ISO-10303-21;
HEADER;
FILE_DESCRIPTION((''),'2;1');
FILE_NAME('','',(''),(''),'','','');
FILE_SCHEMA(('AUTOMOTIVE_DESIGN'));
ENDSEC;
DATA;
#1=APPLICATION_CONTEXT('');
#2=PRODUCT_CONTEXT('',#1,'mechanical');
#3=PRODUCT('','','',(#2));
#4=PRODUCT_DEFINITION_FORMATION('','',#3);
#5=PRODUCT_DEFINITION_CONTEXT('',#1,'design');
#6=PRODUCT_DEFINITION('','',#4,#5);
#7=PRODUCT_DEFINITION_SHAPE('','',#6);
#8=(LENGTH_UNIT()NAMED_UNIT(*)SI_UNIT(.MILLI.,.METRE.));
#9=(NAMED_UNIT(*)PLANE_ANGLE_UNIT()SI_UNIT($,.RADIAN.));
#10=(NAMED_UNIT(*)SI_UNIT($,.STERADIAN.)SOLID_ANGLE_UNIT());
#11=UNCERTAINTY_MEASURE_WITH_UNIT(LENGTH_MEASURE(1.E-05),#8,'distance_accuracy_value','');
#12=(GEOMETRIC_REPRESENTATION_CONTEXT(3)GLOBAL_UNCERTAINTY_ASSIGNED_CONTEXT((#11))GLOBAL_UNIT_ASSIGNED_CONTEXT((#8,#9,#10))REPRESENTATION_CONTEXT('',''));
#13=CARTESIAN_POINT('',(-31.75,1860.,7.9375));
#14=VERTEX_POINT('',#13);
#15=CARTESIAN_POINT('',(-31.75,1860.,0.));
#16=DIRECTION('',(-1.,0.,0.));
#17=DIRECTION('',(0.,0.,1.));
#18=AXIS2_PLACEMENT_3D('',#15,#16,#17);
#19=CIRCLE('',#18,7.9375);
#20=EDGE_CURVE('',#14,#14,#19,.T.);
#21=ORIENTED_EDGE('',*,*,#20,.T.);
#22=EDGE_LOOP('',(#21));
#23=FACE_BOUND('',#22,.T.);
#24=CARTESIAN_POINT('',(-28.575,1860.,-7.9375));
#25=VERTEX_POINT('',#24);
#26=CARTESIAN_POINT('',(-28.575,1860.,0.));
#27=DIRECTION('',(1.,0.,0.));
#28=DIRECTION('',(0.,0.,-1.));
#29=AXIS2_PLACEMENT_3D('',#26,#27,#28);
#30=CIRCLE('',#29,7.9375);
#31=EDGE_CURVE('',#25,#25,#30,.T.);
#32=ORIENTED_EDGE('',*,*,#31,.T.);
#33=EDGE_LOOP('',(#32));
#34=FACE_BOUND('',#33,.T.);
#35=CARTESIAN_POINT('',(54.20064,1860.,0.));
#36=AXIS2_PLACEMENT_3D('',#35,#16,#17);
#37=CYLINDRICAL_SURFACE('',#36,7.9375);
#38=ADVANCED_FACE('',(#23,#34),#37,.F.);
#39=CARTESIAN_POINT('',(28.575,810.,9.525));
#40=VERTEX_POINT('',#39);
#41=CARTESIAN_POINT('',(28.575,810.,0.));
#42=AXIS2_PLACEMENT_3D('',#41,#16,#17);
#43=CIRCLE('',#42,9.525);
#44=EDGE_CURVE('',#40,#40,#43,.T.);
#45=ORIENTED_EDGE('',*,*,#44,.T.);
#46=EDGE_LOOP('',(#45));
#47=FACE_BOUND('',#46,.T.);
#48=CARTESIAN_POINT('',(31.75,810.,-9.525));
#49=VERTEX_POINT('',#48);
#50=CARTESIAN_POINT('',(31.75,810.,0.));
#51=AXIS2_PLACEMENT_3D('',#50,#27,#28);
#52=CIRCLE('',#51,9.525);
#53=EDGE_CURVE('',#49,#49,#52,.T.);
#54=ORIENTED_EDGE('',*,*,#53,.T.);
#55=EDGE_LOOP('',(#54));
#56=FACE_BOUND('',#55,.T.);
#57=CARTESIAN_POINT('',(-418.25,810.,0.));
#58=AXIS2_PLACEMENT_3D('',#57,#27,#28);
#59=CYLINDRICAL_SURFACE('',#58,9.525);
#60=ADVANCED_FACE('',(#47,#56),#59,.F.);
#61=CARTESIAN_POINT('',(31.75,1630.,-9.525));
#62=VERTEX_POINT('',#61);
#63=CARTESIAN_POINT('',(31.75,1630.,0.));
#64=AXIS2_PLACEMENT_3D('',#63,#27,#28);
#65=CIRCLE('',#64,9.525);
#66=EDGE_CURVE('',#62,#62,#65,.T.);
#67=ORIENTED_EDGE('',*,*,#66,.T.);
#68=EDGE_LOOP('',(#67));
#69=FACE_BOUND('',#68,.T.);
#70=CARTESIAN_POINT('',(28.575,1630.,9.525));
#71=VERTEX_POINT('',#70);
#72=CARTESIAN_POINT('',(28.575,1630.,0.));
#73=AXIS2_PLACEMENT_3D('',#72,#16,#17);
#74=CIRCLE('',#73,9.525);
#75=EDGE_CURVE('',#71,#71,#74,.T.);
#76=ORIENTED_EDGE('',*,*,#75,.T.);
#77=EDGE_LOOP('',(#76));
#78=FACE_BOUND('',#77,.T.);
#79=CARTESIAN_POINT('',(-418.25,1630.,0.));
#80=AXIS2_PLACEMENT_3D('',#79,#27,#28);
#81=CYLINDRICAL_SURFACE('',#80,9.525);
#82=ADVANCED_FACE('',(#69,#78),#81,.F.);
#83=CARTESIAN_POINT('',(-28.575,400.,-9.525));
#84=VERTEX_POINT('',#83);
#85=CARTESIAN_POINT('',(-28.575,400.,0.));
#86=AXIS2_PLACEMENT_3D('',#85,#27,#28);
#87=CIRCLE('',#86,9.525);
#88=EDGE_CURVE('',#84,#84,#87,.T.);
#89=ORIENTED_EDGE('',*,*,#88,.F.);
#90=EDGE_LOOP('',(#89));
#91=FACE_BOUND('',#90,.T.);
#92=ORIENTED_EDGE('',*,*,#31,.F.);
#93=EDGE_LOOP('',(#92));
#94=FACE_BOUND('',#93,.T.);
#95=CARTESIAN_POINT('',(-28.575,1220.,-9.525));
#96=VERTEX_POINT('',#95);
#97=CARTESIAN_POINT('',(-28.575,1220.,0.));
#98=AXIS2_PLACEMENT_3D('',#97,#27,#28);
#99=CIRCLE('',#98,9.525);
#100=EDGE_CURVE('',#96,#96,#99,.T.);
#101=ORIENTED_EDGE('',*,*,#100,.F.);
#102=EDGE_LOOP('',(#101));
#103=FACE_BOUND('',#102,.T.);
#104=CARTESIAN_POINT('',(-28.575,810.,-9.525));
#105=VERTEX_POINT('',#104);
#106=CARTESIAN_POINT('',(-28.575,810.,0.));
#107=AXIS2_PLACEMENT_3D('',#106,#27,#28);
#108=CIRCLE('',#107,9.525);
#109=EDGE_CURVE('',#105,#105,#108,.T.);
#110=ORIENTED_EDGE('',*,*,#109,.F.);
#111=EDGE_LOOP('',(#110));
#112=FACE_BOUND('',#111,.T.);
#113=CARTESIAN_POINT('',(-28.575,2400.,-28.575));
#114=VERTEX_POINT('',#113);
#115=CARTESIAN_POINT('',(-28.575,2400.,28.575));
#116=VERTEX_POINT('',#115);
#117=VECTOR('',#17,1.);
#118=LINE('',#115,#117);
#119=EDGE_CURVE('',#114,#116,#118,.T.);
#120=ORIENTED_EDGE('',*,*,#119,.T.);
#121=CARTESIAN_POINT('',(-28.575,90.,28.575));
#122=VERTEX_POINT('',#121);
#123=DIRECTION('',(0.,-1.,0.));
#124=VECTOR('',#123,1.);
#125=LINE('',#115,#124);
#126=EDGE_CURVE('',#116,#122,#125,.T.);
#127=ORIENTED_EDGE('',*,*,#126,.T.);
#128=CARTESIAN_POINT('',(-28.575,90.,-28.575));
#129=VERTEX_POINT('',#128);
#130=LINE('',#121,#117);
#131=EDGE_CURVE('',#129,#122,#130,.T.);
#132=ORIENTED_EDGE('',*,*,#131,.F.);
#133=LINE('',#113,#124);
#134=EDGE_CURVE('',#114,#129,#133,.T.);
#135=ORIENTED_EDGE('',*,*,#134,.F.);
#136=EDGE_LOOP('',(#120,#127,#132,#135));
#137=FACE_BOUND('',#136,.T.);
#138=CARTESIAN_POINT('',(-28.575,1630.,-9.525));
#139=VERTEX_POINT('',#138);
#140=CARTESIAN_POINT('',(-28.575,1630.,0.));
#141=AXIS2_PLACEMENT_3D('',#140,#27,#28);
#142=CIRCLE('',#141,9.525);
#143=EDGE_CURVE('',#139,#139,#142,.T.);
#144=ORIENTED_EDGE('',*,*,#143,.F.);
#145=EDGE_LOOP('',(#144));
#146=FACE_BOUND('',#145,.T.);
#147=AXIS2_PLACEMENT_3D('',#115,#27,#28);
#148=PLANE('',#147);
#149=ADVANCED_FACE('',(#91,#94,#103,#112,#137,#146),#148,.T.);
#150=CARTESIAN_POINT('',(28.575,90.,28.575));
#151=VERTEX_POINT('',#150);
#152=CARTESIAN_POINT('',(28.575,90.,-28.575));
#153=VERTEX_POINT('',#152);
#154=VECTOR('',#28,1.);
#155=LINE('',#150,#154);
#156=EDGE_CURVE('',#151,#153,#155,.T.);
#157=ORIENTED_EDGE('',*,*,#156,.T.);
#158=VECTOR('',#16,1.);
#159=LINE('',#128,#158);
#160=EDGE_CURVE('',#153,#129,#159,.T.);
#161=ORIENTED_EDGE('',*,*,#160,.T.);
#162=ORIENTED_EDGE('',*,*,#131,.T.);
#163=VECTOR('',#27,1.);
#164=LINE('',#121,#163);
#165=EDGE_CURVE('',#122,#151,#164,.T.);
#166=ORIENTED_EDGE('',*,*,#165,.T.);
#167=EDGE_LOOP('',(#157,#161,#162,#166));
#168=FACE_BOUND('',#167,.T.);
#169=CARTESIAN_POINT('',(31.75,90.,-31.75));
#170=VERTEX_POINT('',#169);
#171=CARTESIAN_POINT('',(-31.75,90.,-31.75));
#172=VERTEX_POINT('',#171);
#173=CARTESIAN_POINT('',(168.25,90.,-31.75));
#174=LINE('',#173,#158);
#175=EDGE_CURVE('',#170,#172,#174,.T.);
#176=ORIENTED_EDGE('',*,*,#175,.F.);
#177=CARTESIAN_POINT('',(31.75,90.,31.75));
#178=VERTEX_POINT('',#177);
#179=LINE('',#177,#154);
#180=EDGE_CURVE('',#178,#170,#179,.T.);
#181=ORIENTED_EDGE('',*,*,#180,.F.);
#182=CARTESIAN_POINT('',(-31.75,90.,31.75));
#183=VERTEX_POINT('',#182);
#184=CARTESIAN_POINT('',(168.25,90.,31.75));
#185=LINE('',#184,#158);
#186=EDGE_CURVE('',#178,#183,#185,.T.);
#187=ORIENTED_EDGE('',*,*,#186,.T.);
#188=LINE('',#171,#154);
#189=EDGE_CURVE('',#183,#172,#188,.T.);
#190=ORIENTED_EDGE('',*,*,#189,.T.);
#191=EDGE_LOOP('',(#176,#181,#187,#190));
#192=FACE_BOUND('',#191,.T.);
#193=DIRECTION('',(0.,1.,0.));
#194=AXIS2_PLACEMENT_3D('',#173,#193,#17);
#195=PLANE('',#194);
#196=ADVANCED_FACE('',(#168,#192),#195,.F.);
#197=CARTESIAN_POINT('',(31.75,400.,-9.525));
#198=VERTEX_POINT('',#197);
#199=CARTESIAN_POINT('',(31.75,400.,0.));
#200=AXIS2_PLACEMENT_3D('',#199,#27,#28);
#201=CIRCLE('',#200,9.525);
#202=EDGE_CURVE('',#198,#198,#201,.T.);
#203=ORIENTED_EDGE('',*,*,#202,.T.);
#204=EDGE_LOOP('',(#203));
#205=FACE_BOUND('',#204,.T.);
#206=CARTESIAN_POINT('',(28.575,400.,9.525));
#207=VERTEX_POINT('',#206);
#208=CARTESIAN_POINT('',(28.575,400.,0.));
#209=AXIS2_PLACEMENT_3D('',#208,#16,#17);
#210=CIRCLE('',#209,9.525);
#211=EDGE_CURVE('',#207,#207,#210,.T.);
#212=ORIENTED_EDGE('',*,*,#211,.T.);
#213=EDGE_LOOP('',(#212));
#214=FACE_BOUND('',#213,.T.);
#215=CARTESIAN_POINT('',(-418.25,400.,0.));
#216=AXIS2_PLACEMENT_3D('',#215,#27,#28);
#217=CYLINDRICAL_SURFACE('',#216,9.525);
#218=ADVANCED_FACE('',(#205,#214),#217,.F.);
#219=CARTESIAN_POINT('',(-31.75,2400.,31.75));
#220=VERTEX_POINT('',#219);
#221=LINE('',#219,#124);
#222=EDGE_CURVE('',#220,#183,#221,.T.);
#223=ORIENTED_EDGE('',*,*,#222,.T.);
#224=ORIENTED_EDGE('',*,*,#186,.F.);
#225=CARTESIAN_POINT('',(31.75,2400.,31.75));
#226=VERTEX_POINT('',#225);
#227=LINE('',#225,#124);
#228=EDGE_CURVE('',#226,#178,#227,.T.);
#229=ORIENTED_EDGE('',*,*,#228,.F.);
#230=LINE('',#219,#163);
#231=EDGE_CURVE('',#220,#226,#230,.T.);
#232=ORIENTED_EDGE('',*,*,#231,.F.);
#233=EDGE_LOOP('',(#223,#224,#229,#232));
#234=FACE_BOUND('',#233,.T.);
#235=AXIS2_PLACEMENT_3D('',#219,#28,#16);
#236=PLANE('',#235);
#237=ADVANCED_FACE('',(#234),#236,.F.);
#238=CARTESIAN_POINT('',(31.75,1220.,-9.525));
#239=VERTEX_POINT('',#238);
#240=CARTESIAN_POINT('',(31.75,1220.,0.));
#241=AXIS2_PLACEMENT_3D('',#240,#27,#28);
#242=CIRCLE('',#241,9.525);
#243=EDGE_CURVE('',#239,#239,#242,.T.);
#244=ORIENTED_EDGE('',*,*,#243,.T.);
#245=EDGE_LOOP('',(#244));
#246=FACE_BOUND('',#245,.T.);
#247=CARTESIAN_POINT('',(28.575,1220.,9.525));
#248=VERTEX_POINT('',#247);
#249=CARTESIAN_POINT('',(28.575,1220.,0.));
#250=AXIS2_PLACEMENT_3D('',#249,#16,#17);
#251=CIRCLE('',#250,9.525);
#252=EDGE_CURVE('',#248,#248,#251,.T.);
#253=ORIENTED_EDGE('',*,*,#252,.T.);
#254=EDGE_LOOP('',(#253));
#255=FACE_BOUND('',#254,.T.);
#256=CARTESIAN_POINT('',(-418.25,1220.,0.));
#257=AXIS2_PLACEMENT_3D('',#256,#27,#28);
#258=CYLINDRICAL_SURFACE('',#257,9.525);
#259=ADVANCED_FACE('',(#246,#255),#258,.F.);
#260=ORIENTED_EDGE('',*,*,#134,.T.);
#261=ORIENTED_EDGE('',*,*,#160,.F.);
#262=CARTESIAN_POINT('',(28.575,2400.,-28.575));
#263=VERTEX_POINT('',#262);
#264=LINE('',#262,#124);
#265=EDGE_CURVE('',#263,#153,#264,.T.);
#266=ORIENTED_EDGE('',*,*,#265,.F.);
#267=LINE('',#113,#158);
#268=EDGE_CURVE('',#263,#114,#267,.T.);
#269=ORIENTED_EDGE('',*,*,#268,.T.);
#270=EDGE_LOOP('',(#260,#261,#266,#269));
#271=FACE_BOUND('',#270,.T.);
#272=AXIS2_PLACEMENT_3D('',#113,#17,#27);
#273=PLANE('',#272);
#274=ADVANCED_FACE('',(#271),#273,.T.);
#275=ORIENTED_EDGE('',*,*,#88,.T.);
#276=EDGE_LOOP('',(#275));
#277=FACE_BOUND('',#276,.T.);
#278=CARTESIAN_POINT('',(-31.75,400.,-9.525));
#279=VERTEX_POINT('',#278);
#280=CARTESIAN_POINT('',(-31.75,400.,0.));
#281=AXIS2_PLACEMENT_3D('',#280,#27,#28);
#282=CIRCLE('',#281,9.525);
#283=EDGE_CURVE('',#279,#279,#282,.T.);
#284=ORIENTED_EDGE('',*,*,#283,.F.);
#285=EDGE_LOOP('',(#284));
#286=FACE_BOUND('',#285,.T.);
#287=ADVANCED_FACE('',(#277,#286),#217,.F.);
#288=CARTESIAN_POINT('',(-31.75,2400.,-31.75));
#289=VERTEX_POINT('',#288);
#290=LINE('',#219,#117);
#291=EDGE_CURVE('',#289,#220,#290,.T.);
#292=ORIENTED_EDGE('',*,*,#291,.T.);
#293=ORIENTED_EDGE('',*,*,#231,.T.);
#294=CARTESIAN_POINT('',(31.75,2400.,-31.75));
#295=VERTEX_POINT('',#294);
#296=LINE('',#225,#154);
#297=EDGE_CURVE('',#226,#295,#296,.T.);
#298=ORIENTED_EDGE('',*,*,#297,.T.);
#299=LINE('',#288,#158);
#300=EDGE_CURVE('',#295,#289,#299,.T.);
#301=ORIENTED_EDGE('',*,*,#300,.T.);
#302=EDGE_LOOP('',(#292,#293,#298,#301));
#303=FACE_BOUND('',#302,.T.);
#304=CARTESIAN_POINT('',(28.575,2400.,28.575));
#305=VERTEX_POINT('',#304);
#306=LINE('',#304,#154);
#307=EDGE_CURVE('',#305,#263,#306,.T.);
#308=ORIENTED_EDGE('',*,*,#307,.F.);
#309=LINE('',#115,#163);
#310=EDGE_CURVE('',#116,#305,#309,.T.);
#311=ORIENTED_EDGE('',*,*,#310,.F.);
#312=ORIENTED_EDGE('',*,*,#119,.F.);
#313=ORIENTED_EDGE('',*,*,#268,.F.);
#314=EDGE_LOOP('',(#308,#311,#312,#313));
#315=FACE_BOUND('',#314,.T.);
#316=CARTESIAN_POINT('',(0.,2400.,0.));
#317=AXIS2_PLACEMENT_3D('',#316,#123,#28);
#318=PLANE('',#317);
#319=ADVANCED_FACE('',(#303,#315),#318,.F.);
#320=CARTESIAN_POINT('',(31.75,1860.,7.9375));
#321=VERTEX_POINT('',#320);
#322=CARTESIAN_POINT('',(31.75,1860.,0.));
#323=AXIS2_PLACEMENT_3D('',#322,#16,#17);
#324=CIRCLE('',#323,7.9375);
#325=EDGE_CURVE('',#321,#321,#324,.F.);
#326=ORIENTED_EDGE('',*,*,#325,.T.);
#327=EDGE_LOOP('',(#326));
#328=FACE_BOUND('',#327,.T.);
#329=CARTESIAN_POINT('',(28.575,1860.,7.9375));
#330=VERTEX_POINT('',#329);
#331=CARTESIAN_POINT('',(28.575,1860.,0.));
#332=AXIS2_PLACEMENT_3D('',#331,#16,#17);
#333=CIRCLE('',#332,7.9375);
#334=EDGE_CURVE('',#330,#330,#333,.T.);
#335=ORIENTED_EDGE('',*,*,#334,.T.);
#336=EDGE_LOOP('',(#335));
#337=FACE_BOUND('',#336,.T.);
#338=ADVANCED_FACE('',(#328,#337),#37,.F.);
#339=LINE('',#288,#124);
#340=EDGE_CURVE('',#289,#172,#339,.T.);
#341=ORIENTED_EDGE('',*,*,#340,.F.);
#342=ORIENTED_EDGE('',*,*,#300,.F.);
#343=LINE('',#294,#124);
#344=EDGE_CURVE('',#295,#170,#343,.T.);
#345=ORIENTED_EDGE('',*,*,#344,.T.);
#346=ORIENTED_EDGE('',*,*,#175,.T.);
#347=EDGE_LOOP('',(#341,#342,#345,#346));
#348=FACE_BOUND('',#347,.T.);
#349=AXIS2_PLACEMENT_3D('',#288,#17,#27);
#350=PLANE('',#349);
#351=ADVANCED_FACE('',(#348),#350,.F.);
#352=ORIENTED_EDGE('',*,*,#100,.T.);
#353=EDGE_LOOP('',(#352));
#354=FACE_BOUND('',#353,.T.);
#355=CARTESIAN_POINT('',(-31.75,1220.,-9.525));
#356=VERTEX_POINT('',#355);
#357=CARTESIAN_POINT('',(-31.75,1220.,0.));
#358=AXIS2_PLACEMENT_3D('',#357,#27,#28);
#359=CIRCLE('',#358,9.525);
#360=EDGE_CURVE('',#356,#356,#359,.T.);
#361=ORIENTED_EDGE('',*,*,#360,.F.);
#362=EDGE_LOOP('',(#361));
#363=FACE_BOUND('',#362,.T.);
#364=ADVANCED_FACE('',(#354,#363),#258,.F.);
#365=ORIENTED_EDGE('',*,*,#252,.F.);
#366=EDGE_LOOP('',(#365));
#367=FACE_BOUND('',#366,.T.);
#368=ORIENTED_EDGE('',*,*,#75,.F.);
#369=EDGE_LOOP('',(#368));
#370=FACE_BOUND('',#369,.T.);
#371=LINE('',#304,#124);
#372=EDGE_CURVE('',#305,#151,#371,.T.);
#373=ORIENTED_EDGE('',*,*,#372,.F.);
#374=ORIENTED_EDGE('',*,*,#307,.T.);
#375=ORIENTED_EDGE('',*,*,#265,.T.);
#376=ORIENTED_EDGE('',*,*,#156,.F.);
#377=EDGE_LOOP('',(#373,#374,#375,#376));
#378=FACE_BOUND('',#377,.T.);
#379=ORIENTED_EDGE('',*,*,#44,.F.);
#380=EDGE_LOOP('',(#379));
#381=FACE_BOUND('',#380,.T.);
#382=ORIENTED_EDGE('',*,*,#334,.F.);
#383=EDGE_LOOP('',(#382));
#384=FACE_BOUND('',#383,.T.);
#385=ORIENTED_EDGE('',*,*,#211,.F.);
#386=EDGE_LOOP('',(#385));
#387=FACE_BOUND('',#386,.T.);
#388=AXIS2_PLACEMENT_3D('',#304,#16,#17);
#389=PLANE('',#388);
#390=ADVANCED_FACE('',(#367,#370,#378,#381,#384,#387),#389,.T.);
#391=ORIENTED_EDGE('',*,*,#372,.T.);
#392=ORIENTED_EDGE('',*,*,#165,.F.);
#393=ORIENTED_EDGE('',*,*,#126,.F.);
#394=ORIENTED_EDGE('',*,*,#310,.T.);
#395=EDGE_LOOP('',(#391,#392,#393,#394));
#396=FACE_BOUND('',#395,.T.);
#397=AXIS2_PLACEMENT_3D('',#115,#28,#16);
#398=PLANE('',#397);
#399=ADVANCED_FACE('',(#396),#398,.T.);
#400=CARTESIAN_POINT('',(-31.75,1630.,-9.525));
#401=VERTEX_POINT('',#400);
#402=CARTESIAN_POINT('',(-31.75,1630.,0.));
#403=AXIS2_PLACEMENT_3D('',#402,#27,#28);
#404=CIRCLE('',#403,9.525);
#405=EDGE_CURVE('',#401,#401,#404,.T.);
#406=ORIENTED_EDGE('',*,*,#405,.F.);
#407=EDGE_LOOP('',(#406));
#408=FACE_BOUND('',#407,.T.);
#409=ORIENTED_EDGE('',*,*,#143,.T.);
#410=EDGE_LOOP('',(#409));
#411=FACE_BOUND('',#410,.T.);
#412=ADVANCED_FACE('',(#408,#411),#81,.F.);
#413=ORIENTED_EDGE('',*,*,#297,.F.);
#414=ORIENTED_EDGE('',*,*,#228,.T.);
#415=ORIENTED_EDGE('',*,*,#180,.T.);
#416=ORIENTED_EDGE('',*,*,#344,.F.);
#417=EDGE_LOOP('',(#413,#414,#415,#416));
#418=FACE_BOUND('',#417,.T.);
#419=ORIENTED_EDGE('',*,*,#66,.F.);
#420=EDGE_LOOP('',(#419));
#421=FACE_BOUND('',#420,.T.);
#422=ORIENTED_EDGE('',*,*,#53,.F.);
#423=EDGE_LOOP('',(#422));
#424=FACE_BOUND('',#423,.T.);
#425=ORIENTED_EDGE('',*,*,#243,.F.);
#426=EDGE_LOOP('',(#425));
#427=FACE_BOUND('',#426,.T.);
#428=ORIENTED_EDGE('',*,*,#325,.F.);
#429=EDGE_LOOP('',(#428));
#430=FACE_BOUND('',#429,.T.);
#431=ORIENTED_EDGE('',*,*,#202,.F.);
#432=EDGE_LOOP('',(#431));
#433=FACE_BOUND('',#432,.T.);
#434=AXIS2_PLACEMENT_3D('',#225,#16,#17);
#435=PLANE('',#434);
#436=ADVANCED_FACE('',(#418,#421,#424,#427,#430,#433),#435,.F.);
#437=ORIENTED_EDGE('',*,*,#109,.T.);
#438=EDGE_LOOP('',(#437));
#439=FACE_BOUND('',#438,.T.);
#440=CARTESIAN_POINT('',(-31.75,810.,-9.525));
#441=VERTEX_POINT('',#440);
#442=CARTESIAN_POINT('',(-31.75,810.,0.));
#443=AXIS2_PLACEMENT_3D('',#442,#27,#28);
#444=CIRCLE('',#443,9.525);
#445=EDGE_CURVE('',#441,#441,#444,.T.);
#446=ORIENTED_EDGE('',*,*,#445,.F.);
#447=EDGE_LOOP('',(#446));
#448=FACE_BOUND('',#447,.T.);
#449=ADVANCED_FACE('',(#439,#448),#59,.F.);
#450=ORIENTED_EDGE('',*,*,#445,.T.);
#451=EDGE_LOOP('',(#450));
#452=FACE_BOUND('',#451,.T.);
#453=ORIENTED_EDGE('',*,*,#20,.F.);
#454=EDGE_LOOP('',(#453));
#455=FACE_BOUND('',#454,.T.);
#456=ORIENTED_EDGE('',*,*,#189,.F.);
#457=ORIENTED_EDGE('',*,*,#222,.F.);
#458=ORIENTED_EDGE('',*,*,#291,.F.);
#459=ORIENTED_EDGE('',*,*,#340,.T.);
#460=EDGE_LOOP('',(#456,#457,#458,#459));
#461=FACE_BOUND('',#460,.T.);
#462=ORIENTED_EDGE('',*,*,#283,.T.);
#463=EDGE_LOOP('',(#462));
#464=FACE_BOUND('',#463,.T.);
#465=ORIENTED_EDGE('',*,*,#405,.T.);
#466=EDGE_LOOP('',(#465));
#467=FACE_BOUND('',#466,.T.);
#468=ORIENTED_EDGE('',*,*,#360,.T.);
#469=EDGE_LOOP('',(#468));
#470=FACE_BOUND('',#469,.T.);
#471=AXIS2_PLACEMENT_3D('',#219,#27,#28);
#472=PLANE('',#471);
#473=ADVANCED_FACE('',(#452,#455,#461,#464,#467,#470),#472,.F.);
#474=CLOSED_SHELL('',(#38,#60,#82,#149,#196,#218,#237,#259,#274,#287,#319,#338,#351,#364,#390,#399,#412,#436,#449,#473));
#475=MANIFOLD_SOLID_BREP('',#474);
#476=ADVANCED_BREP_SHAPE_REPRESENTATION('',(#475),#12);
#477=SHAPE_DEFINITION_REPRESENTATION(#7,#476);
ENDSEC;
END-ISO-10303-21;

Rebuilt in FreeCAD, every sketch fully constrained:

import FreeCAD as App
import Part
import Sketcher
from FreeCAD import Vector
Q = App.Units.Quantity


def add_polygon(sketch, points):
    """Adds a closed chain of lines whose ends are joined by coincident constraints."""
    first, n = sketch.GeometryCount, len(points)
    for a, b in zip(points, points[1:] + points[:1]):
        sketch.addGeometry(Part.LineSegment(App.Vector(*a, 0), App.Vector(*b, 0)), False)
    for i in range(n):
        sketch.addConstraint(Sketcher.Constraint("Coincident", first + i, 2, first + (i + 1) % n, 1))

doc = App.newDocument("Part")
body = doc.addObject("PartDesign::Body", "Body")

sketch1 = body.newObject("Sketcher::SketchObject", "Sketch")
sketch1.AttachmentSupport = (doc.getObject("XZ_Plane"), [""])
sketch1.MapMode = "FlatFace"
add_polygon(sketch1, [(-32, -32), (-32, 32), (32, 32), (32, -32)])
add_polygon(sketch1, [(29, 29), (-29, 29), (-29, -29), (29, -29)])
sketch1.addConstraint(Sketcher.Constraint("Vertical", 0))
sketch1.addConstraint(Sketcher.Constraint("Horizontal", 1))
sketch1.addConstraint(Sketcher.Constraint("Vertical", 2))
sketch1.addConstraint(Sketcher.Constraint("Horizontal", 3))
sketch1.addConstraint(Sketcher.Constraint("Horizontal", 4))
sketch1.addConstraint(Sketcher.Constraint("Vertical", 5))
sketch1.addConstraint(Sketcher.Constraint("Horizontal", 6))
sketch1.addConstraint(Sketcher.Constraint("Vertical", 7))
sketch1.addConstraint(Sketcher.Constraint("Symmetric", 0, 2, 2, 2, -1, 1))
sketch1.addConstraint(Sketcher.Constraint("Symmetric", 4, 2, 6, 2, -1, 1))
sketch1.addConstraint(Sketcher.Constraint("Equal", 3, 0))
sketch1.addConstraint(Sketcher.Constraint("Equal", 6, 5))
sketch1.addConstraint(Sketcher.Constraint("DistanceX", 1, 1, 1, 2, Q("63.5 mm")))
sketch1.addConstraint(Sketcher.Constraint("DistanceX", 4, 2, 4, 1, Q("57.15 mm")))
pad1 = body.newObject("PartDesign::Pad", "Pad")
pad1.Profile = sketch1
pad1.Length = 2400
pad1.Reversed = True

sketch2 = body.newObject("Sketcher::SketchObject", "Sketch001")
sketch2.AttachmentSupport = (doc.getObject("YZ_Plane"), [""])
sketch2.MapMode = "FlatFace"
sketch2.AttachmentOffset = App.Placement(Vector(0, 0, 31.75), App.Rotation())
sketch2.addGeometry(Part.Circle(Vector(400, 0, 0), Vector(0, 0, 1), 10), False)
sketch2.addConstraint(Sketcher.Constraint("PointOnObject", 0, 3, -1))
sketch2.addConstraint(Sketcher.Constraint("Diameter", 0, Q("19.05 mm")))
sketch2.addConstraint(Sketcher.Constraint("DistanceX", -1, 1, 0, 3, Q("400 mm")))
pocket1 = body.newObject("PartDesign::Pocket", "Pocket")
pocket1.Profile = sketch2
pocket1.Length = 450
doc.recompute()

linearpattern = body.newObject("PartDesign::LinearPattern", "LinearPattern")
linearpattern.Originals = [pocket1]
linearpattern.Direction = (doc.getObject("Y_Axis"), [""])
linearpattern.Mode = "offset"
linearpattern.Offset = 410
linearpattern.Occurrences = 4
body.Tip = linearpattern

sketch3 = body.newObject("Sketcher::SketchObject", "Sketch002")
sketch3.AttachmentSupport = (doc.getObject("YZ_Plane"), [""])
sketch3.MapMode = "FlatFace"
sketch3.AttachmentOffset = App.Placement(Vector(0, 0, -31.75), App.Rotation())
add_polygon(sketch3, [(90, -32), (0, -32), (0, 32), (90, 32)])
sketch3.addConstraint(Sketcher.Constraint("Horizontal", 0))
sketch3.addConstraint(Sketcher.Constraint("Vertical", 1))
sketch3.addConstraint(Sketcher.Constraint("Horizontal", 2))
sketch3.addConstraint(Sketcher.Constraint("Vertical", 3))
sketch3.addConstraint(Sketcher.Constraint("Symmetric", 0, 2, 1, 2, -1, 1))
sketch3.addConstraint(Sketcher.Constraint("DistanceX", 0, 2, 0, 1, Q("90 mm")))
sketch3.addConstraint(Sketcher.Constraint("DistanceY", 1, 1, 1, 2, Q("63.5 mm")))
pocket2 = body.newObject("PartDesign::Pocket", "Pocket001")
pocket2.Profile = sketch3
pocket2.Length = 200
pocket2.Reversed = True

sketch4 = body.newObject("Sketcher::SketchObject", "Sketch003")
sketch4.AttachmentSupport = (doc.getObject("YZ_Plane"), [""])
sketch4.MapMode = "FlatFace"
sketch4.AttachmentOffset = App.Placement(Vector(0, 0, -31.75), App.Rotation())
sketch4.addGeometry(Part.Circle(Vector(1860, 0, 0), Vector(0, 0, 1), 8), False)
sketch4.addConstraint(Sketcher.Constraint("PointOnObject", 0, 3, -1))
sketch4.addConstraint(Sketcher.Constraint("Diameter", 0, Q("15.875 mm")))
sketch4.addConstraint(Sketcher.Constraint("DistanceX", -1, 1, 0, 3, Q("1860 mm")))
pocket3 = body.newObject("PartDesign::Pocket", "Pocket002")
pocket3.Profile = sketch4
pocket3.Length = 63.5
pocket3.Reversed = True

doc.recompute()
